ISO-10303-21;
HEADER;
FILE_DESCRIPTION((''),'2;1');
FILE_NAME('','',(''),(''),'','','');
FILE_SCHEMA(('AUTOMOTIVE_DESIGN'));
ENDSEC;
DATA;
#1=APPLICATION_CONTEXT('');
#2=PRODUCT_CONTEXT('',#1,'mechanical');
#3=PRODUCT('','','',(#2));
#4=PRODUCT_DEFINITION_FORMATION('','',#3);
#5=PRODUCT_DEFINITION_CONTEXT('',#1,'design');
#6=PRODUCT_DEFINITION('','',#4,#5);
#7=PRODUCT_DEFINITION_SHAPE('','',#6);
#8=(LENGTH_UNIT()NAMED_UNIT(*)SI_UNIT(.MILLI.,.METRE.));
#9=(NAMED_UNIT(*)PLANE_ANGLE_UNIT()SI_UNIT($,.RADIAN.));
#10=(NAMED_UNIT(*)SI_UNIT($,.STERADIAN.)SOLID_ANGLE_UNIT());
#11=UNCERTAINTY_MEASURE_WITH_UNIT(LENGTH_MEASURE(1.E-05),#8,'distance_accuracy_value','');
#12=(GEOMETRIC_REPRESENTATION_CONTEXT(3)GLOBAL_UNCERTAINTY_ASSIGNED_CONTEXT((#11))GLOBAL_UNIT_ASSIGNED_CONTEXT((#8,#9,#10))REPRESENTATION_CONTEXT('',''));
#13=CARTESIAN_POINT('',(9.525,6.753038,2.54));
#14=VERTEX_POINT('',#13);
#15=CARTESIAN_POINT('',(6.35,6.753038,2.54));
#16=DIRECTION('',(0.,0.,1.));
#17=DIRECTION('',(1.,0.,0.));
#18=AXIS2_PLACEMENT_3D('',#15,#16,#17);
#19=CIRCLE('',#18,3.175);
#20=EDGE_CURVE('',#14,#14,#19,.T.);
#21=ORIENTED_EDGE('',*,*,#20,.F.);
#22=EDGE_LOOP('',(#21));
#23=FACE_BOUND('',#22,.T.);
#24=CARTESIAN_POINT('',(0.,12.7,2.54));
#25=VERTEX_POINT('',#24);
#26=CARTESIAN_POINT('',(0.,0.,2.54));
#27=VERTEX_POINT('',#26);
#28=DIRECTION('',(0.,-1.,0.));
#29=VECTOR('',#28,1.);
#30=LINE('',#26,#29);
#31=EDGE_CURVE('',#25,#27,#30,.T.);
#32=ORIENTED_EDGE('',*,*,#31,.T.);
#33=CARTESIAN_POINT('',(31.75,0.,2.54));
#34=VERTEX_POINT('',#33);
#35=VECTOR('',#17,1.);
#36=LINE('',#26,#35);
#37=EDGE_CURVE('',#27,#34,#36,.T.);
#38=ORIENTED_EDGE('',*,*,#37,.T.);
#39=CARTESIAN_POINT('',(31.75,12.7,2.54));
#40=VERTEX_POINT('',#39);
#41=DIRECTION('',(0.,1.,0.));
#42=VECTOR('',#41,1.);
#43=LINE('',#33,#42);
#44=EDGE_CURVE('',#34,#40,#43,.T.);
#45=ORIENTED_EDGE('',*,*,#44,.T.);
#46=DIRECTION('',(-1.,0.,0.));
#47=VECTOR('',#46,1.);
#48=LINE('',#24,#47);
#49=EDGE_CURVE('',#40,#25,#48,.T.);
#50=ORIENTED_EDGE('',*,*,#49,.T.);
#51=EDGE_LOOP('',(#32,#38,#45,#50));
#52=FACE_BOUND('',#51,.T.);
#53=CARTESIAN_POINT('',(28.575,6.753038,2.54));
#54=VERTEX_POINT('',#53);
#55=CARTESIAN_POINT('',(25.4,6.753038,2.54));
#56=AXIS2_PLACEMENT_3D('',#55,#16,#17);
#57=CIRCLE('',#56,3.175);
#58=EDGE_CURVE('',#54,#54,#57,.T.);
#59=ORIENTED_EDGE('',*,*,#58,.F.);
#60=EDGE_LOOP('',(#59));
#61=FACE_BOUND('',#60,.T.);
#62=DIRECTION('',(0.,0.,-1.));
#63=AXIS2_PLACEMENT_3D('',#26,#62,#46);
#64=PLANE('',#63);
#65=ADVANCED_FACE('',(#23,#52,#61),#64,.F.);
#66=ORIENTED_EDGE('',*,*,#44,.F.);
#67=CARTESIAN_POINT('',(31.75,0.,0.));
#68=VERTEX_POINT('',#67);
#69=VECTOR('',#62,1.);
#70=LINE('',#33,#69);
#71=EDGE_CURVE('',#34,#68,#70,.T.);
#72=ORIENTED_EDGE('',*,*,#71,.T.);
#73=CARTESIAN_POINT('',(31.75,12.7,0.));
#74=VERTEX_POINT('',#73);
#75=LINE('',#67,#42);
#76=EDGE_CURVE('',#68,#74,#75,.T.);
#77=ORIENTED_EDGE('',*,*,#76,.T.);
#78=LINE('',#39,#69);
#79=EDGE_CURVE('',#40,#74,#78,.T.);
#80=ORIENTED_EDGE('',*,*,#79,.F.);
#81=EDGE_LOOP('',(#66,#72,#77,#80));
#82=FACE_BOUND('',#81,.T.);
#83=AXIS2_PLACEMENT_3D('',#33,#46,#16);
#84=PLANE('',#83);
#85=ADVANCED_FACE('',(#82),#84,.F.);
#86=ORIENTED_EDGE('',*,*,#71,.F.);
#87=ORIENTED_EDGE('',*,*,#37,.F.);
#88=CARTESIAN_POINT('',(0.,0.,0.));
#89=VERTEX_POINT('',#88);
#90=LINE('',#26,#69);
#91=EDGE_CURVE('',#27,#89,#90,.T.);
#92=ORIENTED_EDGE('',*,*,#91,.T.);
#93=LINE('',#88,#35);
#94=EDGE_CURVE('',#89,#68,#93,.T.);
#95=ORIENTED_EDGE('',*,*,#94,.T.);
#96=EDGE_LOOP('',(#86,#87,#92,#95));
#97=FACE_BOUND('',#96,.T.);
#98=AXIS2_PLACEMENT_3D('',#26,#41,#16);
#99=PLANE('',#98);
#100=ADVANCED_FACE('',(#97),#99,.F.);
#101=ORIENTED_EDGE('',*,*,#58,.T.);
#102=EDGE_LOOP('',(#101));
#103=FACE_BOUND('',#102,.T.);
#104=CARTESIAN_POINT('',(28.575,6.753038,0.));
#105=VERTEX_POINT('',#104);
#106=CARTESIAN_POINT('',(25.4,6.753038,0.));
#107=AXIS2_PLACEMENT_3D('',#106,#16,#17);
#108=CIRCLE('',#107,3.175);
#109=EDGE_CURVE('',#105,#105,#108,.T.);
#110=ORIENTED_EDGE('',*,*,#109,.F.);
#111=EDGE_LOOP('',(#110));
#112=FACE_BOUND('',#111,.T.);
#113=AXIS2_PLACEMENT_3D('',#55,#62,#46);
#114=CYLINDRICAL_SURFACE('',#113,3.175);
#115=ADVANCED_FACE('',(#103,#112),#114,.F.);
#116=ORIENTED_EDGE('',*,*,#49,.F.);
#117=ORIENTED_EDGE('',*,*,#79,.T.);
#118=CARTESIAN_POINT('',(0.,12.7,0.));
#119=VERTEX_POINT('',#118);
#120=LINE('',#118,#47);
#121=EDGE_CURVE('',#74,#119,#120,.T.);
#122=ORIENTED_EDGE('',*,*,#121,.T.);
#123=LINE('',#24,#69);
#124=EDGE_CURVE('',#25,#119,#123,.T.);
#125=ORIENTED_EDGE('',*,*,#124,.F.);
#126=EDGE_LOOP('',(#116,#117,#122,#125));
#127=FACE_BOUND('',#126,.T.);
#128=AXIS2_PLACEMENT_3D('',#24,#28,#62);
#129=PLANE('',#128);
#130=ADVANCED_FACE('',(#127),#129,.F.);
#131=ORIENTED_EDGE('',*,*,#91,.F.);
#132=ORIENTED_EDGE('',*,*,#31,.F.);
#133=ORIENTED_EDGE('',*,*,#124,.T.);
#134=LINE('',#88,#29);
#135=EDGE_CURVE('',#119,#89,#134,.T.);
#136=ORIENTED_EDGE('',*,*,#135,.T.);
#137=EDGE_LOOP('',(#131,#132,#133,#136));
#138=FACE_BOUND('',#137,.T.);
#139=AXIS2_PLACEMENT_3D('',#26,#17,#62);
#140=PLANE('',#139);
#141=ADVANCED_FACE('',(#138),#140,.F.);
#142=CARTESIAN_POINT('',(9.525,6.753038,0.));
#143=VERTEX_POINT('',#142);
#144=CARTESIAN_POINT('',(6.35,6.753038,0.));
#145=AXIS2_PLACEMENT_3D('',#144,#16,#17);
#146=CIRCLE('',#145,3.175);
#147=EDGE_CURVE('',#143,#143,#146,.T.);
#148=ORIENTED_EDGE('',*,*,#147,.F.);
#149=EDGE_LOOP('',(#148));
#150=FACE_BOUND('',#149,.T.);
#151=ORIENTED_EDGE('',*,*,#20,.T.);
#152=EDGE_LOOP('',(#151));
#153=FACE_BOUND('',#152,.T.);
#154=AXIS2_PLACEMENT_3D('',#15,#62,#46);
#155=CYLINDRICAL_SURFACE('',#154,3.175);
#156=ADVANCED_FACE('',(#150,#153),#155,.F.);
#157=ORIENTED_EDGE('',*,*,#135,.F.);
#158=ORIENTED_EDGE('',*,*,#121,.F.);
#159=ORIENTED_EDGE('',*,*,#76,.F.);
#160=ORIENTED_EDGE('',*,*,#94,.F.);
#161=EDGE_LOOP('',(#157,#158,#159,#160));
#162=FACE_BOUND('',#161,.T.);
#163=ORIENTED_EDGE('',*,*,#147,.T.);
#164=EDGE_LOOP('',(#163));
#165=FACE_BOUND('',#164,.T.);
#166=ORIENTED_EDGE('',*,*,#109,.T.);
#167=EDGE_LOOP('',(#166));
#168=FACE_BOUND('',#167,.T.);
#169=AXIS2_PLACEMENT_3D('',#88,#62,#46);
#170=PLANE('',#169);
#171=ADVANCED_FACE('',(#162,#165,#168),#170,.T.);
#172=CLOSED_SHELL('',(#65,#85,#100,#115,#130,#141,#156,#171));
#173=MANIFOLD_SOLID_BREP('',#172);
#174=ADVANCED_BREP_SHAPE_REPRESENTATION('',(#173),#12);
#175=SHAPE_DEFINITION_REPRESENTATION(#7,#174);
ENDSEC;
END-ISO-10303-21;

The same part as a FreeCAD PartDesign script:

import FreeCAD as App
import Part
import Sketcher
from FreeCAD import Vector
Q = App.Units.Quantity


def add_polygon(sketch, points):
    """Adds a closed chain of lines whose ends are joined by coincident constraints."""
    first, n = sketch.GeometryCount, len(points)
    for a, b in zip(points, points[1:] + points[:1]):
        sketch.addGeometry(Part.LineSegment(App.Vector(*a, 0), App.Vector(*b, 0)), False)
    for i in range(n):
        sketch.addConstraint(Sketcher.Constraint("Coincident", first + i, 2, first + (i + 1) % n, 1))

doc = App.newDocument("Part")
body = doc.addObject("PartDesign::Body", "Body")

sketch1 = doc.addObject("Sketcher::SketchObject", "Sketch")
body.addObject(sketch1)
sketch1.AttachmentSupport = (doc.XY_Plane, [""])
sketch1.MapMode = "FlatFace"
add_polygon(sketch1, [(0, 12.7), (0, 0), (31.8, 0), (31.8, 12.7)])
sketch1.addGeometry(Part.Circle(Vector(6.3, 6.8, 0), Vector(0, 0, 1), 3.2), False)
sketch1.addGeometry(Part.Circle(Vector(25.4, 6.8, 0), Vector(0, 0, 1), 3.2), False)
sketch1.addConstraint([
    Sketcher.Constraint("Vertical", 0),
    Sketcher.Constraint("Horizontal", 1),
    Sketcher.Constraint("Vertical", 2),
    Sketcher.Constraint("Horizontal", 3),
    Sketcher.Constraint("Coincident", 0, 2, -1, 1),
    Sketcher.Constraint("Equal", 4, 5),
    Sketcher.Constraint("Horizontal", 4, 3, 5, 3),
    Sketcher.Constraint("Diameter", 4, Q("0.25 in")),
    Sketcher.Constraint("DistanceY", 0, 2, 0, 1, Q("0.5 in")),
    Sketcher.Constraint("DistanceX", -1, 1, 5, 3, Q("1 in")),
    Sketcher.Constraint("DistanceX", 4, 3, 1, 2, Q("1 in")),
    Sketcher.Constraint("DistanceX", 1, 1, 1, 2, Q("1.25 in")),
    Sketcher.Constraint("DistanceY", -1, 1, 4, 3, 6.753038),
])
pad1 = doc.addObject("PartDesign::Pad", "Pad")
body.addObject(pad1)
pad1.Profile = sketch1
pad1.Length = Q("0.1 in")

doc.recompute()
